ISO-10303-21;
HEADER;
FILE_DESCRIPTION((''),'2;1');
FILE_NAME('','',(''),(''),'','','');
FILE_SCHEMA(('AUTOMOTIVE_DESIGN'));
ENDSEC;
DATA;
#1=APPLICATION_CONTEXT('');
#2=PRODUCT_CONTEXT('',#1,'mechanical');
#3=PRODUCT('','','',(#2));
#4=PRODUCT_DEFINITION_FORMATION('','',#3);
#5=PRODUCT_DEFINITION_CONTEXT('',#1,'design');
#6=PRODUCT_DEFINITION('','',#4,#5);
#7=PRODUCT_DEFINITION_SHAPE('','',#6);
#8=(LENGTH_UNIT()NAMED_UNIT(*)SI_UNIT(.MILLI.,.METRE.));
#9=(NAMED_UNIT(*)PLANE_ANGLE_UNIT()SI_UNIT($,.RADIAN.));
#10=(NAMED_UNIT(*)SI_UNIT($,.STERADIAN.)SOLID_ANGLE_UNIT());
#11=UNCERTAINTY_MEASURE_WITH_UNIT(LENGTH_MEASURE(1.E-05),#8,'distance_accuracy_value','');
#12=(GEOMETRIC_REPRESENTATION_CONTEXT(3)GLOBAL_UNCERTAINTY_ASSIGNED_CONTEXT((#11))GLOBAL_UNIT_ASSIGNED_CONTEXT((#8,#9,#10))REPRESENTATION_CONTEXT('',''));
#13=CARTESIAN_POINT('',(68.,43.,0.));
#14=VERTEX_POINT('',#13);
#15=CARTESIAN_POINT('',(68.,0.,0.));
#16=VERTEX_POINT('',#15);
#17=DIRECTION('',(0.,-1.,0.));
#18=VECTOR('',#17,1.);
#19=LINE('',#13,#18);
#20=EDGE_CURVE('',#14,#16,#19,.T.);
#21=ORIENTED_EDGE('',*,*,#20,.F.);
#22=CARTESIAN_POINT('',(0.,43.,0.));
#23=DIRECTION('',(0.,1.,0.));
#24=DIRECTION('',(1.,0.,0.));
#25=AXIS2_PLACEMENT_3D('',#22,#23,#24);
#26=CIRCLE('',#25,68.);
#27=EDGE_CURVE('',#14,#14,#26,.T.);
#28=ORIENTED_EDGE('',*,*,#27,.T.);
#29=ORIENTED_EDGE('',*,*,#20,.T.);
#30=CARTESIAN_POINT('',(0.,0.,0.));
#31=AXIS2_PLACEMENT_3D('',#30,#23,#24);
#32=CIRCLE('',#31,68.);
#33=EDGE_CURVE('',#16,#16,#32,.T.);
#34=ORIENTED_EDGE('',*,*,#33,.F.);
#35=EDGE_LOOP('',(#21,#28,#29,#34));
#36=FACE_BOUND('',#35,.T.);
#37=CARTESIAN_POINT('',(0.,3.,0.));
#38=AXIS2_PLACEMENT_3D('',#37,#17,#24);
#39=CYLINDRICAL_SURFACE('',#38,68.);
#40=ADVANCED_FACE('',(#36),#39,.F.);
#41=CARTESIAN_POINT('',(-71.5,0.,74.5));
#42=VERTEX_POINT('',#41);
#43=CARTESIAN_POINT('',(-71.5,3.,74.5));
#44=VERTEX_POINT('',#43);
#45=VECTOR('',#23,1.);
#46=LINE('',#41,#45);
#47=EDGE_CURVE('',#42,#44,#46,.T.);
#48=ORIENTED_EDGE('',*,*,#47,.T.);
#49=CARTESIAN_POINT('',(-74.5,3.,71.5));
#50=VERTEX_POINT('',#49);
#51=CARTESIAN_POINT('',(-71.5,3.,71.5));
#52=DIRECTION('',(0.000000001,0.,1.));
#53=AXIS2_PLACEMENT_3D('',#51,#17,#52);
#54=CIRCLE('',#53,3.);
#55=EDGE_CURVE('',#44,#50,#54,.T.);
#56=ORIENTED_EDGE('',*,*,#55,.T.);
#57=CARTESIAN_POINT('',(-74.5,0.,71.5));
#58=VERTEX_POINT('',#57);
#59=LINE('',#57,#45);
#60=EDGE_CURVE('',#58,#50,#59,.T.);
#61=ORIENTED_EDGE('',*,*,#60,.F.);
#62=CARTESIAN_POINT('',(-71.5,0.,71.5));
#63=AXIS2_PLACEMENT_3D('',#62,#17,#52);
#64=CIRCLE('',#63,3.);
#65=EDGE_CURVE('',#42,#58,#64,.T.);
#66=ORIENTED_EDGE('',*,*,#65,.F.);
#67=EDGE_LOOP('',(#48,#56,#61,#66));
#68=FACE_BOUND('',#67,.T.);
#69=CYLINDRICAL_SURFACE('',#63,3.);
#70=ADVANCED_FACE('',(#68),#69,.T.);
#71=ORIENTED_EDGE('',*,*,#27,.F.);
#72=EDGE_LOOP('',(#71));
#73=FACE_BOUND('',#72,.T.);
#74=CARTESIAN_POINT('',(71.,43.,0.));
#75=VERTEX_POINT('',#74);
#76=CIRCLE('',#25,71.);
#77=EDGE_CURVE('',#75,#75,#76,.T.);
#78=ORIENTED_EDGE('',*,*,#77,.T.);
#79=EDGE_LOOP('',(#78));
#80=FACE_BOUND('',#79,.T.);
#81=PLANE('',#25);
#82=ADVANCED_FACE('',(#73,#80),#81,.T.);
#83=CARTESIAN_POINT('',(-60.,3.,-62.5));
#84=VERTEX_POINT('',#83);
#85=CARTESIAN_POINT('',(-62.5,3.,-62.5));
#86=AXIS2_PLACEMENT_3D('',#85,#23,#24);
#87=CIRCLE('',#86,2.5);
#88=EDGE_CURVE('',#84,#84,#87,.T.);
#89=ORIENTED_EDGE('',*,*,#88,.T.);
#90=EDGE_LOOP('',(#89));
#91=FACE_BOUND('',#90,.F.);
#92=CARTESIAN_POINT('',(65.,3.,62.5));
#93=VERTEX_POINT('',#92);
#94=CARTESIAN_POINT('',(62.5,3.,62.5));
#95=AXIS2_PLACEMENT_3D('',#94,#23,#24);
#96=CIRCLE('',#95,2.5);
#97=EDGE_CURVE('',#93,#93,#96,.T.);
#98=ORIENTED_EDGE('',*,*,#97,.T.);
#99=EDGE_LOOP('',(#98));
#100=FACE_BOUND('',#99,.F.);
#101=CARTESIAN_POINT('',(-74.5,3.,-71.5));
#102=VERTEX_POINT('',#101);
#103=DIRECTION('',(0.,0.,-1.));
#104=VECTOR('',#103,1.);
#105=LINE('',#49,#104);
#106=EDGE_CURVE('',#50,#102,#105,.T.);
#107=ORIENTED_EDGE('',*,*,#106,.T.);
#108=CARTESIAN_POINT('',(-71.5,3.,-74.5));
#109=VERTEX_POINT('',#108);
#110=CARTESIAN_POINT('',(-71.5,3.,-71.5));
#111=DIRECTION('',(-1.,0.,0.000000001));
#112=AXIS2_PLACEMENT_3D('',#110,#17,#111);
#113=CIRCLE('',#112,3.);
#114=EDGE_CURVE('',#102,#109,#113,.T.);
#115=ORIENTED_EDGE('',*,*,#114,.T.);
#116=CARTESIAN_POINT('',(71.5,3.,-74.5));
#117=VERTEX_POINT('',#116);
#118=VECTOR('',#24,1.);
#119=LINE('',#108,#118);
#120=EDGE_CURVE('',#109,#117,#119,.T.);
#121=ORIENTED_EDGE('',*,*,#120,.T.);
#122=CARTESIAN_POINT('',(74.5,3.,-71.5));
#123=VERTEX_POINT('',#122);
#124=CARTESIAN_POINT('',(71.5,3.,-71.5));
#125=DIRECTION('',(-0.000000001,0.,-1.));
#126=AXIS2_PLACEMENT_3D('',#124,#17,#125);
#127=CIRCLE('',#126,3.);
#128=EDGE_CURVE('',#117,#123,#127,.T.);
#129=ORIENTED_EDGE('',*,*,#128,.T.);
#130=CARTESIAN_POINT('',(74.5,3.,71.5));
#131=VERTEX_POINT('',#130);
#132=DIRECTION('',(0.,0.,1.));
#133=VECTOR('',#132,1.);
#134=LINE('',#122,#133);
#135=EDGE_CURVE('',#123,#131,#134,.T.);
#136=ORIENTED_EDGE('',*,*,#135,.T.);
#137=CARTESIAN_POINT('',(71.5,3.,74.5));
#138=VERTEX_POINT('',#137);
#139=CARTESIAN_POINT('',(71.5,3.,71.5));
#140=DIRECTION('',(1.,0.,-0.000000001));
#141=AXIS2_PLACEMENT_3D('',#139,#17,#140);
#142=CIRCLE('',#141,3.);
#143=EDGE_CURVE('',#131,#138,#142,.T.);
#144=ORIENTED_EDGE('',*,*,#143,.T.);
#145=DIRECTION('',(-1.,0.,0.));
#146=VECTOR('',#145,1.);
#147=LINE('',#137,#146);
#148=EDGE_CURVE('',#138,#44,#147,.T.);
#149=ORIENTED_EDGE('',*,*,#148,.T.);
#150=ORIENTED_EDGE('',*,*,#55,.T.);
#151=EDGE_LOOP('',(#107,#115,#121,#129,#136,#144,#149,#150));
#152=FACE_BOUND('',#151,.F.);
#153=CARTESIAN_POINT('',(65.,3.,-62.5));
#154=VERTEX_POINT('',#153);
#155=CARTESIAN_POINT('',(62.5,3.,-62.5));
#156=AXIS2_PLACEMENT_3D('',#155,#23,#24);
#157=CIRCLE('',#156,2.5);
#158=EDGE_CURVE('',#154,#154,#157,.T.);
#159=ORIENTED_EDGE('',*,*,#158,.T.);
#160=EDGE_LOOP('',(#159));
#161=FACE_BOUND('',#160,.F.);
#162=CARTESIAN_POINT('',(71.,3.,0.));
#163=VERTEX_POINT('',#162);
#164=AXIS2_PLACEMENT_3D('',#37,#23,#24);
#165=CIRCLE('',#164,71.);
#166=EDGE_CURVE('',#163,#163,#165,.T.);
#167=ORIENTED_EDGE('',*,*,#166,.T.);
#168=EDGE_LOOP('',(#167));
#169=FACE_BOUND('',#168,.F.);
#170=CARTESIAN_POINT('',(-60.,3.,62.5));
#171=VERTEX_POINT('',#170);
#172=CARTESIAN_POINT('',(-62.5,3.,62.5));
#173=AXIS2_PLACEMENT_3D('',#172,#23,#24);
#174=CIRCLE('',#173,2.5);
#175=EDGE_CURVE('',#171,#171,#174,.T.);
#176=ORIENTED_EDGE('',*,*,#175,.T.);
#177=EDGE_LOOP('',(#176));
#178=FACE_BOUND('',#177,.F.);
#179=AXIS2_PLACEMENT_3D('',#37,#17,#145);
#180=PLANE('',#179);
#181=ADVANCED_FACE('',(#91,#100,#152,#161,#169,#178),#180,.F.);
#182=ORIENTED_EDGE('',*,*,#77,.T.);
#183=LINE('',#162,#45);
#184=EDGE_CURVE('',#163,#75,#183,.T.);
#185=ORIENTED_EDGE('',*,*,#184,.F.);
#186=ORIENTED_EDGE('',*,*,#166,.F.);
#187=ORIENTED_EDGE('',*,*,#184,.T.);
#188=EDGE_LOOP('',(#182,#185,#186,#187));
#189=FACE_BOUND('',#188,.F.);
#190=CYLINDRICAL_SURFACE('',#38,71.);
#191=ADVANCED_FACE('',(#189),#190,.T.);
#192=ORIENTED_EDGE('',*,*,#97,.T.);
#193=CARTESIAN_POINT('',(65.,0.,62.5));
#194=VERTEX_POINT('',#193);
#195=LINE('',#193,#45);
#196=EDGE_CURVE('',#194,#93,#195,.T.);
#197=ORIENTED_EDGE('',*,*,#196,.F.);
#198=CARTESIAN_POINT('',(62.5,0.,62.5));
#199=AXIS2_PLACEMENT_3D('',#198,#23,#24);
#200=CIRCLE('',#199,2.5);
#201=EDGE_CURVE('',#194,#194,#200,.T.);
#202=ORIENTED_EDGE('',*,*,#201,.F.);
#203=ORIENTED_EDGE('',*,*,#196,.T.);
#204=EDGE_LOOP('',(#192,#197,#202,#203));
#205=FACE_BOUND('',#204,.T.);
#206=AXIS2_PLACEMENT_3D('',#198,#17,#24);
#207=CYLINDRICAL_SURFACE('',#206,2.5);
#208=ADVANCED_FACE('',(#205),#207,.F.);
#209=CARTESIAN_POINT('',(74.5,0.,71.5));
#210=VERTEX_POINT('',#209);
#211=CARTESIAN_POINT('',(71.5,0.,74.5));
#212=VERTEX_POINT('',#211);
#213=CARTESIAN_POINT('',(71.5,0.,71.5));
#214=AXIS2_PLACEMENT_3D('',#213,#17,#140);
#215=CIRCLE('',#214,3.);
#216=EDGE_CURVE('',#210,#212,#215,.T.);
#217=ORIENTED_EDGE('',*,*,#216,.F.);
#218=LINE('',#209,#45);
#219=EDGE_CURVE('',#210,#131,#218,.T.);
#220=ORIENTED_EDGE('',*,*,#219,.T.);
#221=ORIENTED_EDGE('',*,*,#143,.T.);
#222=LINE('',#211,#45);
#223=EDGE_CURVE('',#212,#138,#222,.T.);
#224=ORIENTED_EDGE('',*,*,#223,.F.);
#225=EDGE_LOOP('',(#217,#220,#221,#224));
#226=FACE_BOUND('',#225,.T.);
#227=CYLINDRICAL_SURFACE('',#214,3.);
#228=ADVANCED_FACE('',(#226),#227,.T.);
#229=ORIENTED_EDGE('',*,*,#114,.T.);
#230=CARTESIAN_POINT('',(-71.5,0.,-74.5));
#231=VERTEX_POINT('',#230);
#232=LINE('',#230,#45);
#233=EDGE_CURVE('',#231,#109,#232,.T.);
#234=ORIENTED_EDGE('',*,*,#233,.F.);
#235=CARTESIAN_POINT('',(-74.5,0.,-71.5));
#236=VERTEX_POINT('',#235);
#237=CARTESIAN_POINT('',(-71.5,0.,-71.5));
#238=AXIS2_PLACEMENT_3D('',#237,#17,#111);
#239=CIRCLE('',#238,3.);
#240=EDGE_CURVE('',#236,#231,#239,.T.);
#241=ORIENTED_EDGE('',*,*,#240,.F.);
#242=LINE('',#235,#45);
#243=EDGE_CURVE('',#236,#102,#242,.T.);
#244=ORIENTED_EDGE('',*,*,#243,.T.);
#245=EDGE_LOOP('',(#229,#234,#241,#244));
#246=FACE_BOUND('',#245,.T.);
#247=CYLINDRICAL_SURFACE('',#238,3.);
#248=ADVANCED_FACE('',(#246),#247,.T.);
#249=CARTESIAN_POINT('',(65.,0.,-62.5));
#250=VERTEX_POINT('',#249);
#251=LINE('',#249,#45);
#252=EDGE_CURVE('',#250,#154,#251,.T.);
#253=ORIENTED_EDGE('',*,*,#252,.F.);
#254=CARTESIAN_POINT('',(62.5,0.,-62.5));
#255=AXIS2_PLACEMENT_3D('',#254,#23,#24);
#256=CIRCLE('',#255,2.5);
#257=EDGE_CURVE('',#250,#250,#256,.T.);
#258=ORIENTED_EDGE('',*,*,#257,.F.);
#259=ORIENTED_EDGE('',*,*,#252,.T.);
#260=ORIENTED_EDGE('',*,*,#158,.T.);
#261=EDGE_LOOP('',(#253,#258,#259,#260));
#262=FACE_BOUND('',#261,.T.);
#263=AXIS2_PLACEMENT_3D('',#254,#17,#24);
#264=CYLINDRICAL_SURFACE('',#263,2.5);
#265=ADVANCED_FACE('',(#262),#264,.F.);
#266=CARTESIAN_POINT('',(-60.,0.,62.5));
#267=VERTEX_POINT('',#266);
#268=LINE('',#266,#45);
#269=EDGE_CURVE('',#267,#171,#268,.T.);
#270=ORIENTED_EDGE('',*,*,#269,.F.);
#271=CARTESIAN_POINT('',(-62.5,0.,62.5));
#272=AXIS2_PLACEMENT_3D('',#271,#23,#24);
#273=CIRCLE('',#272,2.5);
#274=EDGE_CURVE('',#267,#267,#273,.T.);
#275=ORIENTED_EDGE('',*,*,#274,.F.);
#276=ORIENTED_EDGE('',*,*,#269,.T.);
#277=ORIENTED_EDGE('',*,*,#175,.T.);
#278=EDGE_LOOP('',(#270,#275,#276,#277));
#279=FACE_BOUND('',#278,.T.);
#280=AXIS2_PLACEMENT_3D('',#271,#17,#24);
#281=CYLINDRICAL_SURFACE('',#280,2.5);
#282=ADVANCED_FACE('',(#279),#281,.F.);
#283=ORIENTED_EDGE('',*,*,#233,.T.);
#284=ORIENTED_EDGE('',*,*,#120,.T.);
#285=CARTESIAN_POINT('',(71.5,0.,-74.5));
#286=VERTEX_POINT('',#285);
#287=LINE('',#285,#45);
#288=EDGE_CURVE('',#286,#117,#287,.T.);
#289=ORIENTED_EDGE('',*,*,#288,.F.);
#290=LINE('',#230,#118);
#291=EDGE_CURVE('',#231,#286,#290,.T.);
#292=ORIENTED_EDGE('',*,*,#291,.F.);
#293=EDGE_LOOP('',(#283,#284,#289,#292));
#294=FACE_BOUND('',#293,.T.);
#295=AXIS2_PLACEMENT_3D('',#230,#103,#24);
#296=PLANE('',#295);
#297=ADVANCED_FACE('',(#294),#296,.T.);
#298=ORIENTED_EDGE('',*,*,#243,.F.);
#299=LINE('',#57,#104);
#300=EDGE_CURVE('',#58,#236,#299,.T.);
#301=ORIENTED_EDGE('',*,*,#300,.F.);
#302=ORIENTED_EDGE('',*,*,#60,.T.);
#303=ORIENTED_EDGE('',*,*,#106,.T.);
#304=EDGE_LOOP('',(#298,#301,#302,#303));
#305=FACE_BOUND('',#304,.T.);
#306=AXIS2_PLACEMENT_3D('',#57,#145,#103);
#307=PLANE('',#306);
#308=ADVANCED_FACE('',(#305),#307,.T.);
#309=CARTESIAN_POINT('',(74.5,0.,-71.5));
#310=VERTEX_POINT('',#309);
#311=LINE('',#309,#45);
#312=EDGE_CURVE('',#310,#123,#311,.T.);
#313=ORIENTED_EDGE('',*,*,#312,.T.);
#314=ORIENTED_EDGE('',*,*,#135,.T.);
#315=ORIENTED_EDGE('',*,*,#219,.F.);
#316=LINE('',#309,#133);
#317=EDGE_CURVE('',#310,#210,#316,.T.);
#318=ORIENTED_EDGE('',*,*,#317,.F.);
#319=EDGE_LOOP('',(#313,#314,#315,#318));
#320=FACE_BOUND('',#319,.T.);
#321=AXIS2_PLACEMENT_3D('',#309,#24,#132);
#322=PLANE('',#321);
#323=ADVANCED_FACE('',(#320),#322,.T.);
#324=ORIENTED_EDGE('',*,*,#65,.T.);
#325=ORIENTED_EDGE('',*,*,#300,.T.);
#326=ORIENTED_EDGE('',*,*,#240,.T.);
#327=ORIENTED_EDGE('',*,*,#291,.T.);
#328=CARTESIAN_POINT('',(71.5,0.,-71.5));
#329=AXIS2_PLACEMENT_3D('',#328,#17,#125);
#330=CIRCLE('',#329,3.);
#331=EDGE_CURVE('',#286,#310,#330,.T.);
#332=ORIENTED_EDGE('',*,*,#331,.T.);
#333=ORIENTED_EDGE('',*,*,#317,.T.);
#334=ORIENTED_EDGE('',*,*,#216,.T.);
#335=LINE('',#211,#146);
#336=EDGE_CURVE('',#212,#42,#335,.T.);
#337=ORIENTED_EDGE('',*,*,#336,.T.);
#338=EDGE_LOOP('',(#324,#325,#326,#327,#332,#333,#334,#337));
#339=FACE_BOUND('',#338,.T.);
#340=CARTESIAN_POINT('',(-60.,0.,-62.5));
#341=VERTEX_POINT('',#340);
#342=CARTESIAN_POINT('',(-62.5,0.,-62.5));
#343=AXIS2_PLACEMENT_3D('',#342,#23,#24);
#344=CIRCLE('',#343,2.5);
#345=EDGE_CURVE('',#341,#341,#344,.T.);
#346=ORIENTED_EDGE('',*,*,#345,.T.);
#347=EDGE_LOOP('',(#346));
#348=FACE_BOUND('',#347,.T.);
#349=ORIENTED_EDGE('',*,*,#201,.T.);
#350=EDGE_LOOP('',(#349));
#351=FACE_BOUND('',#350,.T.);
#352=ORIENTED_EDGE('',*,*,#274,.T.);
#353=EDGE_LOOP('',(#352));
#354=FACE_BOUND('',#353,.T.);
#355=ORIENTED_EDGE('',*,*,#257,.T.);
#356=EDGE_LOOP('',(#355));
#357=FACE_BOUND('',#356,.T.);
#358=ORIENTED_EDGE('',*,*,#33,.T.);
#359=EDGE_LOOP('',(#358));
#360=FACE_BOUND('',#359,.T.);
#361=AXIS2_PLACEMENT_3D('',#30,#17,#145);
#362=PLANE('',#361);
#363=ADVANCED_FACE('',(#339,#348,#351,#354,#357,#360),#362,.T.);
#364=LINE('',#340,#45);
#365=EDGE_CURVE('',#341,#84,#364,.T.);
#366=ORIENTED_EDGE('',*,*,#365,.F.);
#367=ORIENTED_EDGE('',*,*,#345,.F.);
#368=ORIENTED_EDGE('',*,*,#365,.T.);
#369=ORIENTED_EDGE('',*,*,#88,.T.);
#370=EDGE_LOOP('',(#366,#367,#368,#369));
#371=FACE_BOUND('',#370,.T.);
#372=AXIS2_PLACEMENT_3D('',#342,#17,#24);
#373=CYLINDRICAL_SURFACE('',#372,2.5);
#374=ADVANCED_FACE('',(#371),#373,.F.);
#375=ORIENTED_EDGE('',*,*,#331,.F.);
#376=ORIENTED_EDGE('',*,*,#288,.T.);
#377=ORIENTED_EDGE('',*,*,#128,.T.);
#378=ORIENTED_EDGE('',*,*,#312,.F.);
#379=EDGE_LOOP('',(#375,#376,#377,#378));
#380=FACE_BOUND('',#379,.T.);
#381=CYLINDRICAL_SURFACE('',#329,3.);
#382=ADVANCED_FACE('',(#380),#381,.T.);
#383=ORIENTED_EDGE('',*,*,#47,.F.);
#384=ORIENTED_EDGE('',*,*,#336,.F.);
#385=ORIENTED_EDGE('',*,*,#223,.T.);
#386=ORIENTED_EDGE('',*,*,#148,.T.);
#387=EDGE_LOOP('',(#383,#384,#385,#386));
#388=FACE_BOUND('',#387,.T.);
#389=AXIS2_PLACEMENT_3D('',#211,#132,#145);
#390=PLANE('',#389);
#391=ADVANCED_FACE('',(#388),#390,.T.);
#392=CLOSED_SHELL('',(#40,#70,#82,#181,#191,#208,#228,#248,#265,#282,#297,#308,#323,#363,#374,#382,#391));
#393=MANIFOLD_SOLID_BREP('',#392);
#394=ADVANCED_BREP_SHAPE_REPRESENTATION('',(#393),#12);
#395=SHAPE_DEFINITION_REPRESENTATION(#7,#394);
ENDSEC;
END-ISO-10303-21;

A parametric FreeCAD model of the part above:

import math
import FreeCAD as App
import Part
import Sketcher
from FreeCAD import Vector

doc = App.newDocument("Part")
body = doc.addObject("PartDesign::Body", "Body")

sketch1 = body.newObject("Sketcher::SketchObject", "Sketch")
sketch1.AttachmentSupport = (doc.getObject("XZ_Plane"), [""])
sketch1.MapMode = "FlatFace"
sketch1.addGeometry(Part.LineSegment(Vector(71.5, -74.5, 0), Vector(-71.5, -74.5, 0)), False)
sketch1.addGeometry(Part.ArcOfCircle(Part.Circle(Vector(-71.5, -71.5, 0), Vector(0, 0, 1), 3), math.radians(180), math.radians(270)), False)
sketch1.addGeometry(Part.LineSegment(Vector(-74.5, -71.5, 0), Vector(-74.5, 71.5, 0)), False)
sketch1.addGeometry(Part.ArcOfCircle(Part.Circle(Vector(-71.5, 71.5, 0), Vector(0, 0, 1), 3), math.radians(90), math.radians(180)), False)
sketch1.addGeometry(Part.LineSegment(Vector(-71.5, 74.5, 0), Vector(71.5, 74.5, 0)), False)
sketch1.addGeometry(Part.ArcOfCircle(Part.Circle(Vector(71.5, 71.5, 0), Vector(0, 0, 1), 3), math.radians(0), math.radians(90)), False)
sketch1.addGeometry(Part.LineSegment(Vector(74.5, 71.5, 0), Vector(74.5, -71.5, 0)), False)
sketch1.addGeometry(Part.ArcOfCircle(Part.Circle(Vector(71.5, -71.5, 0), Vector(0, 0, 1), 3), math.radians(-90), math.radians(0)), False)
sketch1.addGeometry(Part.Circle(Vector(62.5, 62.5, 0), Vector(0, 0, 1), 2.5), False)
sketch1.addGeometry(Part.Circle(Vector(-62.5, 62.5, 0), Vector(0, 0, 1), 2.5), False)
sketch1.addGeometry(Part.Circle(Vector(62.5, -62.5, 0), Vector(0, 0, 1), 2.5), False)
sketch1.addGeometry(Part.Circle(Vector(0, 0, 0), Vector(0, 0, 1), 68), False)
sketch1.addGeometry(Part.Circle(Vector(-62.5, -62.5, 0), Vector(0, 0, 1), 2.5), False)
sketch1.addConstraint(Sketcher.Constraint("Tangent", 0, 2, 1, 2))
sketch1.addConstraint(Sketcher.Constraint("Tangent", 1, 1, 2, 1))
sketch1.addConstraint(Sketcher.Constraint("Tangent", 2, 2, 3, 2))
sketch1.addConstraint(Sketcher.Constraint("Tangent", 3, 1, 4, 1))
sketch1.addConstraint(Sketcher.Constraint("Tangent", 4, 2, 5, 2))
sketch1.addConstraint(Sketcher.Constraint("Tangent", 5, 1, 6, 1))
sketch1.addConstraint(Sketcher.Constraint("Tangent", 6, 2, 7, 2))
sketch1.addConstraint(Sketcher.Constraint("Tangent", 7, 1, 0, 1))
sketch1.addConstraint(Sketcher.Constraint("Horizontal", 0))
sketch1.addConstraint(Sketcher.Constraint("Vertical", 2))
sketch1.addConstraint(Sketcher.Constraint("Horizontal", 4))
sketch1.addConstraint(Sketcher.Constraint("Vertical", 6))
sketch1.addConstraint(Sketcher.Constraint("Coincident", 11, 3, -1, 1))
sketch1.addConstraint(Sketcher.Constraint("Equal", 1, 3))
sketch1.addConstraint(Sketcher.Constraint("Equal", 3, 5))
sketch1.addConstraint(Sketcher.Constraint("Equal", 5, 7))
sketch1.addConstraint(Sketcher.Constraint("Equal", 8, 9))
sketch1.addConstraint(Sketcher.Constraint("Equal", 9, 10))
sketch1.addConstraint(Sketcher.Constraint("Equal", 10, 12))
sketch1.addConstraint(Sketcher.Constraint("Symmetric", 1, 3, 5, 3, -1, 1))
sketch1.addConstraint(Sketcher.Constraint("Symmetric", 9, 3, 10, 3, -1, 1))
sketch1.addConstraint(Sketcher.Constraint("Symmetric", 8, 3, 12, 3, -1, 1))
sketch1.addConstraint(Sketcher.Constraint("Symmetric", 8, 3, 9, 3, -2))
sketch1.addConstraint(Sketcher.Constraint("Equal", 4, 2))
sketch1.addConstraint(Sketcher.Constraint("Diameter", 8, 5.0))
sketch1.addConstraint(Sketcher.Constraint("Diameter", 11, 136.0))
sketch1.addConstraint(Sketcher.Constraint("Radius", 1, 3.0))
sketch1.addConstraint(Sketcher.Constraint("DistanceX", 0, 2, 0, 1, 143.0))
sketch1.addConstraint(Sketcher.Constraint("DistanceX", 8, 3, 5, 3, 9.0))
sketch1.addConstraint(Sketcher.Constraint("DistanceY", 8, 3, 5, 3, 9.0))
pad1 = body.newObject("PartDesign::Pad", "Pad")
pad1.Profile = sketch1
pad1.Length = 3
pad1.Reversed = True

sketch2 = body.newObject("Sketcher::SketchObject", "Sketch001")
sketch2.AttachmentSupport = (doc.getObject("XZ_Plane"), [""])
sketch2.MapMode = "FlatFace"
sketch2.AttachmentOffset = App.Placement(Vector(0, 0, -3), App.Rotation())
sketch2.addGeometry(Part.Circle(Vector(0, 0, 0), Vector(0, 0, 1), 71), False)
sketch2.addGeometry(Part.Circle(Vector(0, 0, 0), Vector(0, 0, 1), 68), False)
sketch2.addConstraint(Sketcher.Constraint("Coincident", 0, 3, -1, 1))
sketch2.addConstraint(Sketcher.Constraint("Coincident", 1, 3, -1, 1))
sketch2.addConstraint(Sketcher.Constraint("Diameter", 0, 142.0))
sketch2.addConstraint(Sketcher.Constraint("Diameter", 1, 136.0))
pad2 = body.newObject("PartDesign::Pad", "Pad001")
pad2.Profile = sketch2
pad2.Length = 40
pad2.Reversed = True

doc.recompute()
